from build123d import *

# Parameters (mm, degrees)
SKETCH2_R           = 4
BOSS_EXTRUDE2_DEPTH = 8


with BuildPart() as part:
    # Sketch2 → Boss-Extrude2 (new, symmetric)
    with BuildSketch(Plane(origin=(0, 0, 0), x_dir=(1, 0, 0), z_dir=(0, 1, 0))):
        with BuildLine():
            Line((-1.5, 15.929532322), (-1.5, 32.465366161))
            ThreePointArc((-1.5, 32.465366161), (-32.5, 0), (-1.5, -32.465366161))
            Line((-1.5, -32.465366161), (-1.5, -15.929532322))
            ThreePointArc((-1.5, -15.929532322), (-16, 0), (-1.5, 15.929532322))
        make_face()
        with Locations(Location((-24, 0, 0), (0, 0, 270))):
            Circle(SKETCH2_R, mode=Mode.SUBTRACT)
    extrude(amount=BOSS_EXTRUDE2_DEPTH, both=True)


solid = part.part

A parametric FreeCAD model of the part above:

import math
import FreeCAD as App
import Part
import Sketcher
Q = App.Units.Quantity

doc = App.newDocument("Part")
params = doc.addObject("Spreadsheet::Sheet", "Params")
for row, (alias, value) in enumerate([
    ("sketch1_diameter", "8 mm"),
    ("sketch1_radius", "16 mm"),
    ("sketch1_radius2", "32.5 mm"),
    ("pad1_length", "16 mm"),
], start=1):
    params.set(f"A{row}", alias)
    params.set(f"B{row}", "=" + value)
    params.setAlias(f"B{row}", alias)

body = doc.addObject("PartDesign::Body", "Body")

sketch1 = body.newObject("Sketcher::SketchObject", "Sketch")
sketch1.AttachmentSupport = (doc.getObject("XZ_Plane"), [""])
sketch1.MapMode = "FlatFace"
sketch1.addGeometry([
    Part.LineSegment(App.Vector(-1.5, -15.9, 0), App.Vector(-1.5, -32.5, 0)),
    Part.ArcOfCircle(Part.Circle(App.Vector(0, 0, 0), App.Vector(0, 0, 1), 32.5), math.radians(93), math.radians(267)),
    Part.LineSegment(App.Vector(-1.5, 32.5, 0), App.Vector(-1.5, 15.9, 0)),
    Part.ArcOfCircle(Part.Circle(App.Vector(0, 0, 0), App.Vector(0, 0, 1), 16), math.radians(95), math.radians(265)),
    Part.Circle(App.Vector(-24, 0, 0), App.Vector(0, 0, 1), 4),
], False)
sketch1.addConstraint([
    Sketcher.Constraint("Coincident", 0, 2, 1, 2),
    Sketcher.Constraint("Coincident", 1, 1, 2, 1),
    Sketcher.Constraint("Coincident", 2, 2, 3, 1),
    Sketcher.Constraint("Coincident", 3, 2, 0, 1),
    Sketcher.Constraint("Vertical", 0),
    Sketcher.Constraint("Vertical", 2),
    Sketcher.Constraint("Coincident", 1, 3, -1, 1),
    Sketcher.Constraint("Coincident", 3, 3, -1, 1),
    Sketcher.Constraint("PointOnObject", 4, 3, -1),
    Sketcher.Constraint("Vertical", 0, 2, 1, 1),
    Sketcher.Constraint("Diameter", 4, Q("8 mm")),
    Sketcher.Constraint("Radius", 3, Q("16 mm")),
    Sketcher.Constraint("Radius", 1, Q("32.5 mm")),
    Sketcher.Constraint("DistanceX", 4, 3, -1, 1, Q("24 mm")),
    Sketcher.Constraint("DistanceX", 0, 2, -1, 1, Q("1.5 mm")),
])
sketch1.setExpression("Constraints[10]", "Params.sketch1_diameter")
sketch1.setExpression("Constraints[11]", "Params.sketch1_radius")
sketch1.setExpression("Constraints[12]", "Params.sketch1_radius2")
pad1 = body.newObject("PartDesign::Pad", "Pad")
pad1.Profile = sketch1
pad1.setExpression("Length", "Params.pad1_length")
pad1.Midplane = True

doc.recompute()
